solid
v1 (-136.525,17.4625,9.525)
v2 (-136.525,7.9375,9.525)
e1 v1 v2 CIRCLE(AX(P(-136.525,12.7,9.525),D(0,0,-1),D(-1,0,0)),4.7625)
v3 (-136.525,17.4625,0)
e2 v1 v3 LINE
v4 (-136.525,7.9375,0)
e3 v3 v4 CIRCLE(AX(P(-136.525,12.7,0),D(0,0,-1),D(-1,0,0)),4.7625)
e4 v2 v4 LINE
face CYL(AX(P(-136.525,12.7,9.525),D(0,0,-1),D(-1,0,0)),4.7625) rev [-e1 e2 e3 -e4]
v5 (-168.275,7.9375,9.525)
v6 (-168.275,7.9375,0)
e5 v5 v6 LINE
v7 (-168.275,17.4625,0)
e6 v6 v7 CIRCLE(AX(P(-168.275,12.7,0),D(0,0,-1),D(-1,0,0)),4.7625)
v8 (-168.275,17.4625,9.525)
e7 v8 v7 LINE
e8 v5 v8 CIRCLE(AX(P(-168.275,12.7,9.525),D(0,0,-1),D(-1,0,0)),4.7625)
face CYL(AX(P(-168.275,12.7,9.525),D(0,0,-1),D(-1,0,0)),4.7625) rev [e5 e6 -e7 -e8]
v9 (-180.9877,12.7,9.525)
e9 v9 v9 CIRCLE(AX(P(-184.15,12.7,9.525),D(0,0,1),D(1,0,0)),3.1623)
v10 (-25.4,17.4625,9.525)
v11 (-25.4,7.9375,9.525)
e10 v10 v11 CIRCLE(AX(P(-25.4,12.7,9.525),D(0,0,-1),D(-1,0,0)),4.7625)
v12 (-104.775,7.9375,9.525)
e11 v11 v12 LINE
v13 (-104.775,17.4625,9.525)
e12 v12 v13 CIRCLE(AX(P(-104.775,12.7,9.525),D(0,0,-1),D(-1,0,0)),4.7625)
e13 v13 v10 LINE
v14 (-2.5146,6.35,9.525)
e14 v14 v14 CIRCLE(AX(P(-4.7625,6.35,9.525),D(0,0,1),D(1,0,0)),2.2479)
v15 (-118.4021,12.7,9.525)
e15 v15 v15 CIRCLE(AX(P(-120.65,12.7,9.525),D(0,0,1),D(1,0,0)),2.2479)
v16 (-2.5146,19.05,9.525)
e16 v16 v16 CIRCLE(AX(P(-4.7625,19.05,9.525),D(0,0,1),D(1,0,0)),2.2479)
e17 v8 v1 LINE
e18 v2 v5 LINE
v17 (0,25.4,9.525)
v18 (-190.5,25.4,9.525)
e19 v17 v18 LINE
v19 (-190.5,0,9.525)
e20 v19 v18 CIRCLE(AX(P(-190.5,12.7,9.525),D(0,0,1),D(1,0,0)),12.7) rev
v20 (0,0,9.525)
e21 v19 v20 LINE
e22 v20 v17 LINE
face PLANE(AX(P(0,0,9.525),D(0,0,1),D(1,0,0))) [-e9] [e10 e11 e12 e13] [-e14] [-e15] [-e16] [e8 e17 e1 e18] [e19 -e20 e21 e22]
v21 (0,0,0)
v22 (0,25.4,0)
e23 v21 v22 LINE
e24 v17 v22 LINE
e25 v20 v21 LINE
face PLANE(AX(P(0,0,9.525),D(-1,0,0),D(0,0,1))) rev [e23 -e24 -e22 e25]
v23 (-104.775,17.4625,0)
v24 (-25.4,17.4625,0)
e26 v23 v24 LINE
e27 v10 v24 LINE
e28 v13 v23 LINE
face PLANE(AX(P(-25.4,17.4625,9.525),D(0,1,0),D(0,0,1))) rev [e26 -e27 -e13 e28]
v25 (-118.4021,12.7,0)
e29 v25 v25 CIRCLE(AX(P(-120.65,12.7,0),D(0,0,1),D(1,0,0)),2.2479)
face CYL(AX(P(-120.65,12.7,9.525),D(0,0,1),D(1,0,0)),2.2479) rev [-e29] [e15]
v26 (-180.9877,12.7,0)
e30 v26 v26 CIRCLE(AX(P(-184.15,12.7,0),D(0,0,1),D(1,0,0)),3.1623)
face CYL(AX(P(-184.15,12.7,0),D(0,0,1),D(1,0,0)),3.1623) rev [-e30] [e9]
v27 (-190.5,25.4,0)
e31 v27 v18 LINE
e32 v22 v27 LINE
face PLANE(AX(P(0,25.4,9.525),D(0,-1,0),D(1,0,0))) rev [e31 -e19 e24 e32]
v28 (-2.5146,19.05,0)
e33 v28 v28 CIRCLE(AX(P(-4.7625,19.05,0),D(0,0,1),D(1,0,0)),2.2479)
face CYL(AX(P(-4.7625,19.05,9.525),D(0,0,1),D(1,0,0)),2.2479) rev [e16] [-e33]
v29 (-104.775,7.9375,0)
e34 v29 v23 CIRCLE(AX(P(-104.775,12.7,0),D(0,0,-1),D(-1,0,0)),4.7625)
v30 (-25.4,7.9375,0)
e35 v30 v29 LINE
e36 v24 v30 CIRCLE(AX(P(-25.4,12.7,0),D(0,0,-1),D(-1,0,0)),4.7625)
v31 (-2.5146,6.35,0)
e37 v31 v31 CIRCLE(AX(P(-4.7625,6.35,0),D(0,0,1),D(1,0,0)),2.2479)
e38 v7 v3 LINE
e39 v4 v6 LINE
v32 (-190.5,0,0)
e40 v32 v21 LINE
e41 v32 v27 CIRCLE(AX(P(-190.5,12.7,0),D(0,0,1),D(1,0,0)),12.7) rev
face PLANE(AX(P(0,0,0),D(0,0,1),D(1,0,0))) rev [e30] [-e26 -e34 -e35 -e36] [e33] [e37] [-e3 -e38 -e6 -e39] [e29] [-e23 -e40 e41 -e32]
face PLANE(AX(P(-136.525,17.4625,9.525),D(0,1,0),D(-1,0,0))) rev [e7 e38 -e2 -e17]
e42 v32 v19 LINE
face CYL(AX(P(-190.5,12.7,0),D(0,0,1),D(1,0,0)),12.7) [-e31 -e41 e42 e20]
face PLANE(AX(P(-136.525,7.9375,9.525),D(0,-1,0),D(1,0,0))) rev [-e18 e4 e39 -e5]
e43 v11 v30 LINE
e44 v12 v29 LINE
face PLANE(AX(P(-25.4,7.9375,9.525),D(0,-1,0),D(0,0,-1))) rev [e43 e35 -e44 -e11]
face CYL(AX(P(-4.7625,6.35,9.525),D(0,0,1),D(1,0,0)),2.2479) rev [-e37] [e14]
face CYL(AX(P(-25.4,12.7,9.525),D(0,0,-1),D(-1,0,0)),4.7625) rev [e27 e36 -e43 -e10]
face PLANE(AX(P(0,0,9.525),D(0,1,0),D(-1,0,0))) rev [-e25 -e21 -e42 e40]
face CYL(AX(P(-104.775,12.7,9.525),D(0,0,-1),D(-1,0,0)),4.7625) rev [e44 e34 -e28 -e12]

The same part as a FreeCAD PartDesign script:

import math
import FreeCAD as App
import Part
import Sketcher

V = App.Vector
Q = App.Units.Quantity

doc = App.newDocument("Part")
body = doc.addObject("PartDesign::Body", "Body")

# Sketch on XY plane
sketch1 = body.newObject("Sketcher::SketchObject", "Sketch")
sketch1.AttachmentSupport = (doc.getObject("XY_Plane"), [""])
sketch1.MapMode = "FlatFace"
sketch1.addGeometry(Part.LineSegment(V(-203, 25, 0), V(-203, 0, 0)), False)
sketch1.addGeometry(Part.LineSegment(V(-203, 0, 0), V(0, 0, 0)), False)
sketch1.addGeometry(Part.LineSegment(V(0, 0, 0), V(0, 25, 0)), False)
sketch1.addGeometry(Part.LineSegment(V(0, 25, 0), V(-203, 25, 0)), False)
sketch1.addConstraint(Sketcher.Constraint("Coincident", 0, 2, 1, 1))
sketch1.addConstraint(Sketcher.Constraint("Coincident", 1, 2, 2, 1))
sketch1.addConstraint(Sketcher.Constraint("Coincident", 2, 2, 3, 1))
sketch1.addConstraint(Sketcher.Constraint("Coincident", 3, 2, 0, 1))
sketch1.addConstraint(Sketcher.Constraint("Vertical", 0))
sketch1.addConstraint(Sketcher.Constraint("Horizontal", 1))
sketch1.addConstraint(Sketcher.Constraint("Vertical", 2))
sketch1.addConstraint(Sketcher.Constraint("Horizontal", 3))
sketch1.addConstraint(Sketcher.Constraint("Coincident", 1, 2, -1, 1))
sketch1.addConstraint(Sketcher.Constraint("DistanceX", 1, 1, 1, 2, Q("8 in")))
sketch1.addConstraint(Sketcher.Constraint("DistanceY", 0, 2, 0, 1, Q("1 in")))
pad1 = body.newObject("PartDesign::Pad", "Pad")
pad1.Profile = sketch1
pad1.Length = Q("0.375 in")

# Sketch on XY plane
sketch2 = body.newObject("Sketcher::SketchObject", "Sketch001")
sketch2.AttachmentSupport = (doc.getObject("XY_Plane"), [""])
sketch2.MapMode = "FlatFace"
sketch2.AttachmentOffset = App.Placement(V(0, 0, 0.375 * 25.4), App.Rotation())
sketch2.addGeometry(Part.Circle(V(-4.8, 6.3, 0), V(0, 0, 1), 2.2), False)
sketch2.addGeometry(Part.Circle(V(-4.8, 19.1, 0), V(0, 0, 1), 2.2), False)
sketch2.addConstraint(Sketcher.Constraint("Equal", 0, 1))
sketch2.addConstraint(Sketcher.Constraint("Vertical", 0, 3, 1, 3))
sketch2.addConstraint(Sketcher.Constraint("Diameter", 0, Q("0.177 in")))
sketch2.addConstraint(Sketcher.Constraint("DistanceY", 0, 3, 1, 3, Q("0.5 in")))
sketch2.addConstraint(Sketcher.Constraint("DistanceY", -1, 1, 0, 3, Q("0.25 in")))
sketch2.addConstraint(Sketcher.Constraint("DistanceX", 0, 3, -1, 1, Q("0.1875 in")))
doc.recompute()
hole = body.newObject("PartDesign::Hole", "Hole")
hole.Profile = sketch2
hole.ThreadType = "None"
hole.Diameter = Q("0.177 in")
hole.DepthType = "Dimension"
hole.Depth = Q("1 in")
hole.DrillPoint = "Angled"
hole.DrillPointAngle = 118

# Sketch on XY plane
sketch3 = body.newObject("Sketcher::SketchObject", "Sketch002")
sketch3.AttachmentSupport = (doc.getObject("XY_Plane"), [""])
sketch3.MapMode = "FlatFace"
sketch3.AttachmentOffset = App.Placement(V(0, 0, 0.375 * 25.4), App.Rotation())
sketch3.addGeometry(Part.Circle(V(-184.2, 12.7, 0), V(0, 0, 1), 3.2), False)
sketch3.addConstraint(Sketcher.Constraint("Diameter", 0, Q("0.249 in")))
sketch3.addConstraint(Sketcher.Constraint("DistanceY", -1, 1, 0, 3, Q("0.5 in")))
sketch3.addConstraint(Sketcher.Constraint("DistanceX", 0, 3, -1, 1, Q("7.25 in")))
pocket1 = body.newObject("PartDesign::Pocket", "Pocket")
pocket1.Profile = sketch3
pocket1.Length = Q("0.375 in")

# Sketch on XY plane
sketch4 = body.newObject("Sketcher::SketchObject", "Sketch003")
sketch4.AttachmentSupport = (doc.getObject("XY_Plane"), [""])
sketch4.MapMode = "FlatFace"
sketch4.AttachmentOffset = App.Placement(V(0, 0, 0.375 * 25.4), App.Rotation())
sketch4.addGeometry(Part.Circle(V(-120.7, 12.7, 0), V(0, 0, 1), 2.2), False)
sketch4.addConstraint(Sketcher.Constraint("Diameter", 0, Q("0.177 in")))
sketch4.addConstraint(Sketcher.Constraint("DistanceY", -1, 1, 0, 3, Q("0.5 in")))
sketch4.addConstraint(Sketcher.Constraint("DistanceX", 0, 3, -1, 1, Q("4.75 in")))
doc.recompute()
hole2 = body.newObject("PartDesign::Hole", "Hole001")
hole2.Profile = sketch4
hole2.ThreadType = "None"
hole2.Diameter = Q("0.177 in")
hole2.DepthType = "Dimension"
hole2.Depth = Q("0.75 in")
hole2.DrillPoint = "Angled"
hole2.DrillPointAngle = 118

# Sketch on XY plane
sketch5 = body.newObject("Sketcher::SketchObject", "Sketch004")
sketch5.AttachmentSupport = (doc.getObject("XY_Plane"), [""])
sketch5.MapMode = "FlatFace"
sketch5.AttachmentOffset = App.Placement(V(0, 0, 0.375 * 25.4), App.Rotation())
sketch5.addGeometry(Part.LineSegment(V(-190, 25, 0), V(-203, 25, 0)), False)
sketch5.addGeometry(Part.LineSegment(V(-203, 25, 0), V(-203, 13, 0)), False)
sketch5.addGeometry(Part.ArcOfCircle(Part.Circle(V(-190, 13, 0), V(0, 0, 1), 13), math.radians(90), math.radians(180)), False)
sketch5.addGeometry(Part.ArcOfCircle(Part.Circle(V(-190, 13, 0), V(0, 0, 1), 13), math.radians(180), math.radians(270)), False)
sketch5.addGeometry(Part.LineSegment(V(-203, 13, 0), V(-203, 0, 0)), False)
sketch5.addGeometry(Part.LineSegment(V(-203, 0, 0), V(-190, 0, 0)), False)
sketch5.addConstraint(Sketcher.Constraint("Coincident", 0, 2, 1, 1))
sketch5.addConstraint(Sketcher.Constraint("Tangent", 1, 2, 2, 2))
sketch5.addConstraint(Sketcher.Constraint("Tangent", 2, 1, 0, 1))
sketch5.addConstraint(Sketcher.Constraint("Tangent", 3, 1, 4, 1))
sketch5.addConstraint(Sketcher.Constraint("Coincident", 4, 2, 5, 1))
sketch5.addConstraint(Sketcher.Constraint("Tangent", 5, 2, 3, 2))
sketch5.addConstraint(Sketcher.Constraint("Horizontal", 0))
sketch5.addConstraint(Sketcher.Constraint("Vertical", 1))
sketch5.addConstraint(Sketcher.Constraint("Vertical", 4))
sketch5.addConstraint(Sketcher.Constraint("Horizontal", 5))
sketch5.addConstraint(Sketcher.Constraint("Coincident", 3, 3, 2, 3))
sketch5.addConstraint(Sketcher.Constraint("Equal", 2, 3))
sketch5.addConstraint(Sketcher.Constraint("PointOnObject", 4, 2, -1))
sketch5.addConstraint(Sketcher.Constraint("Radius", 2, Q("0.5 in")))
sketch5.addConstraint(Sketcher.Constraint("DistanceX", 0, 2, -1, 1, Q("8 in")))
pocket2 = body.newObject("PartDesign::Pocket", "Pocket001")
pocket2.Profile = sketch5
pocket2.Type = "ThroughAll"

# Sketch on XY plane
sketch6 = body.newObject("Sketcher::SketchObject", "Sketch005")
sketch6.AttachmentSupport = (doc.getObject("XY_Plane"), [""])
sketch6.MapMode = "FlatFace"
sketch6.addGeometry(Part.LineSegment(V(-104.8, 17.5, 0), V(-25.4, 17.5, 0)), False)
sketch6.addGeometry(Part.ArcOfCircle(Part.Circle(V(-25.4, 12.7, 0), V(0, 0, 1), 4.8), math.radians(-90), math.radians(90)), False)
sketch6.addGeometry(Part.LineSegment(V(-25.4, 7.9, 0), V(-104.8, 7.9, 0)), False)
sketch6.addGeometry(Part.ArcOfCircle(Part.Circle(V(-104.8, 12.7, 0), V(0, 0, 1), 4.8), math.radians(90), math.radians(270)), False)
sketch6.addGeometry(Part.LineSegment(V(-168.3, 17.5, 0), V(-136.5, 17.5, 0)), False)
sketch6.addGeometry(Part.ArcOfCircle(Part.Circle(V(-136.5, 12.7, 0), V(0, 0, 1), 4.8), math.radians(-90), math.radians(90)), False)
sketch6.addGeometry(Part.LineSegment(V(-136.5, 7.9, 0), V(-168.3, 7.9, 0)), False)
sketch6.addGeometry(Part.ArcOfCircle(Part.Circle(V(-168.3, 12.7, 0), V(0, 0, 1), 4.8), math.radians(90), math.radians(270)), False)
sketch6.addConstraint(Sketcher.Constraint("Tangent", 0, 2, 1, 2))
sketch6.addConstraint(Sketcher.Constraint("Tangent", 1, 1, 2, 1))
sketch6.addConstraint(Sketcher.Constraint("Tangent", 2, 2, 3, 2))
sketch6.addConstraint(Sketcher.Constraint("Tangent", 3, 1, 0, 1))
sketch6.addConstraint(Sketcher.Constraint("Tangent", 4, 2, 5, 2))
sketch6.addConstraint(Sketcher.Constraint("Tangent", 5, 1, 6, 1))
sketch6.addConstraint(Sketcher.Constraint("Tangent", 6, 2, 7, 2))
sketch6.addConstraint(Sketcher.Constraint("Tangent", 7, 1, 4, 1))
sketch6.addConstraint(Sketcher.Constraint("Horizontal", 0))
sketch6.addConstraint(Sketcher.Constraint("Horizontal", 2))
sketch6.addConstraint(Sketcher.Constraint("Horizontal", 4))
sketch6.addConstraint(Sketcher.Constraint("Horizontal", 6))
sketch6.addConstraint(Sketcher.Constraint("Equal", 3, 5))
sketch6.addConstraint(Sketcher.Constraint("Horizontal", 3, 3, 5, 3))
sketch6.addConstraint(Sketcher.Constraint("DistanceX", 1, 3, -1, 1, Q("1 in")))
sketch6.addConstraint(Sketcher.Constraint("Radius", 1, Q("0.1875 in")))
sketch6.addConstraint(Sketcher.Constraint("DistanceX", 4, 1, 4, 2, Q("1.25 in")))
sketch6.addConstraint(Sketcher.Constraint("DistanceY", -1, 1, 1, 3, Q("0.5 in")))
sketch6.addConstraint(Sketcher.Constraint("DistanceX", 7, 3, 3, 3, Q("2.5 in")))
sketch6.addConstraint(Sketcher.Constraint("DistanceX", 0, 1, 0, 2, Q("3.125 in")))
pocket3 = body.newObject("PartDesign::Pocket", "Pocket002")
pocket3.Profile = sketch6
pocket3.Type = "ThroughAll"
pocket3.Reversed = True

doc.recompute()
